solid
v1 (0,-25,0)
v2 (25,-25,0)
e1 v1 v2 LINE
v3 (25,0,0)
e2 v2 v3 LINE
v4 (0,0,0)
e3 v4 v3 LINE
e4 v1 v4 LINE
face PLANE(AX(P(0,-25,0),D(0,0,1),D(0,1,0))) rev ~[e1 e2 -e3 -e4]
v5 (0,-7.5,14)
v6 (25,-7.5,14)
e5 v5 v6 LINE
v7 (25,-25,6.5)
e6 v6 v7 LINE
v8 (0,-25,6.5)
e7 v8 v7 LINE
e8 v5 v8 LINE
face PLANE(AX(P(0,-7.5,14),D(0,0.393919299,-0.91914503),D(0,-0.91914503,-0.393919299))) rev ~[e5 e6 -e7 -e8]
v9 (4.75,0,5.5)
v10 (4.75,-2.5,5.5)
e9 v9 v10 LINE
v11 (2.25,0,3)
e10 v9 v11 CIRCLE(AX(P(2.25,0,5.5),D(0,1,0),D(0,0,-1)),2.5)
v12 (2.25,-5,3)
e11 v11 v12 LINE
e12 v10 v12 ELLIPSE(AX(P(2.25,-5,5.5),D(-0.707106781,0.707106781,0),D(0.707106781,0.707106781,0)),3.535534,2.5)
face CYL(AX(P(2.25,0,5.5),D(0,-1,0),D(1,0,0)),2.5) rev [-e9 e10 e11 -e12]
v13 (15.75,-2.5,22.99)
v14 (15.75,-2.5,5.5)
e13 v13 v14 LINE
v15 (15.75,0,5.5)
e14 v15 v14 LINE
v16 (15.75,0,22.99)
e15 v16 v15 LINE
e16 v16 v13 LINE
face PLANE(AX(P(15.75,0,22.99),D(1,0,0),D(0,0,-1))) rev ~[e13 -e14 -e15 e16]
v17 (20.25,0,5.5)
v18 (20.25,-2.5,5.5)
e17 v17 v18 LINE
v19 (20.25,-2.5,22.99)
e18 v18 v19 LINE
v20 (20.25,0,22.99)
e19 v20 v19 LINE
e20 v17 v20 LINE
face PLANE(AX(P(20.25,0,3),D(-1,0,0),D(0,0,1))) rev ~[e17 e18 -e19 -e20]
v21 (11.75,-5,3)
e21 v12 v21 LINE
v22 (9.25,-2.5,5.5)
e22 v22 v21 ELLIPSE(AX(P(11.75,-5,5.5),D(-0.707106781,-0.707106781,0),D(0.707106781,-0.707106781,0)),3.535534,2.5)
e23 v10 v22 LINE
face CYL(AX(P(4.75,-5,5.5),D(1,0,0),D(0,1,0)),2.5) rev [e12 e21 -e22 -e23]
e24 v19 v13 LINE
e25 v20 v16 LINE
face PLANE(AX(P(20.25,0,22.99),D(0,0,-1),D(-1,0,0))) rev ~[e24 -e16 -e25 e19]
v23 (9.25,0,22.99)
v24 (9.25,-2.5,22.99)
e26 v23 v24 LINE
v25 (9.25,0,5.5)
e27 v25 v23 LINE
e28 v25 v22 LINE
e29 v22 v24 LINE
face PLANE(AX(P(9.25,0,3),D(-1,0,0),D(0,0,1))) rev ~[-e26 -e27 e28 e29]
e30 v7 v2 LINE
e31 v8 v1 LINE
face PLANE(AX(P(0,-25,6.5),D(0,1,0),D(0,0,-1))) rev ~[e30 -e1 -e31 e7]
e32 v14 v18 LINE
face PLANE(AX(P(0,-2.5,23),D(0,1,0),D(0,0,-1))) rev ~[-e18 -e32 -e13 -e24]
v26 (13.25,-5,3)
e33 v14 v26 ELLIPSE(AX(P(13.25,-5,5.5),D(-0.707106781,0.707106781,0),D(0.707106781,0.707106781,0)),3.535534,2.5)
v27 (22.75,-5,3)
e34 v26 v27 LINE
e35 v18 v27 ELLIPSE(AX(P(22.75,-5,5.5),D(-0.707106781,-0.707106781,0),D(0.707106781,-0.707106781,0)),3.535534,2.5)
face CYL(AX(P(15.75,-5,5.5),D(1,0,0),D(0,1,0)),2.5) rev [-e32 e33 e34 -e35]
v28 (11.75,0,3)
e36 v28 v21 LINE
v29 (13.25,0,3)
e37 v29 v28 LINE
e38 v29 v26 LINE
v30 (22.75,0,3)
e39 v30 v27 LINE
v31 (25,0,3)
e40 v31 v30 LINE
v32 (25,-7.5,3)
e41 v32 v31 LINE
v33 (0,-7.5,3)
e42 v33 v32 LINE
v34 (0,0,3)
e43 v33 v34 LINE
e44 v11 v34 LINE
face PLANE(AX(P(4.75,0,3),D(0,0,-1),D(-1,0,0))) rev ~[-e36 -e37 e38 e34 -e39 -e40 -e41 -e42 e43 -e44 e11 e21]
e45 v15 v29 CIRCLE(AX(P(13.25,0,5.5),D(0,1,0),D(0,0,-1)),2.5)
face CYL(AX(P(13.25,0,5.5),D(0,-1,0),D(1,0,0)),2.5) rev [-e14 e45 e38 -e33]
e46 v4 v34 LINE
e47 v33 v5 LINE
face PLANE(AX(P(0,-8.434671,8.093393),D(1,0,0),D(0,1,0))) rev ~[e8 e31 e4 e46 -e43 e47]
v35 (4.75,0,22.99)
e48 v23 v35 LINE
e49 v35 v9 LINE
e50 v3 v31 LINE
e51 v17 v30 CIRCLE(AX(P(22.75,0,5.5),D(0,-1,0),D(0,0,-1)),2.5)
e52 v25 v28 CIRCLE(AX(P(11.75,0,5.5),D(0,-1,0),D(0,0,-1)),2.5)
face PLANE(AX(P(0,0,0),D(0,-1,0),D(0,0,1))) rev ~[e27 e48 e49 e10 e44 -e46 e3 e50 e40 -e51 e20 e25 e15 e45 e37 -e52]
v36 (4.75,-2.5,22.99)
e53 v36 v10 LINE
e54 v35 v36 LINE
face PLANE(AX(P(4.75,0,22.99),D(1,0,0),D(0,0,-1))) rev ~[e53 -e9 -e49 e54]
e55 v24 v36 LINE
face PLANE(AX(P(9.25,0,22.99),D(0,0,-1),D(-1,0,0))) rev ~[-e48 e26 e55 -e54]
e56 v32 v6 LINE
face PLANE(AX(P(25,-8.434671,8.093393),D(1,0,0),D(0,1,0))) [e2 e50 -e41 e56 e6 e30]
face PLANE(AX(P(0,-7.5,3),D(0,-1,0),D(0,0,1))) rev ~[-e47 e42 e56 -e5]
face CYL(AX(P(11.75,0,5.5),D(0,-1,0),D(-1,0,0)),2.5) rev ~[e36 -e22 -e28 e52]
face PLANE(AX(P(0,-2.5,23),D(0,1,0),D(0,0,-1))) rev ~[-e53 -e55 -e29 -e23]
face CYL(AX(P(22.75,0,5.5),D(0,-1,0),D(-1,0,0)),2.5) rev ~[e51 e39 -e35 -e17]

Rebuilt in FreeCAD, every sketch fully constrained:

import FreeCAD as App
import Part
import Sketcher

V = App.Vector


def edges_at(feature, points):
    """Names of the edges that pass closest to the given points."""
    edges = feature.Shape.Edges
    near = lambda p: min(range(len(edges)), key=lambda i: edges[i].distToShape(Part.Vertex(*p))[0])
    return sorted({f"Edge{near(p) + 1}" for p in points})

doc = App.newDocument("Part")
body = doc.addObject("PartDesign::Body", "Body")

# Sketch on YZ plane
sketch1 = body.newObject("Sketcher::SketchObject", "Sketch")
sketch1.AttachmentSupport = (doc.getObject("YZ_Plane"), [""])
sketch1.MapMode = "FlatFace"
sketch1.addGeometry(Part.LineSegment(V(0, 0, 0), V(0, 23, 0)), False)
sketch1.addGeometry(Part.LineSegment(V(0, 23, 0), V(-2.5, 23, 0)), False)
sketch1.addGeometry(Part.LineSegment(V(-2.5, 23, 0), V(-2.5, 3, 0)), False)
sketch1.addGeometry(Part.LineSegment(V(-2.5, 3, 0), V(-7.5, 3, 0)), False)
sketch1.addGeometry(Part.LineSegment(V(-7.5, 3, 0), V(-7.5, 14, 0)), False)
sketch1.addGeometry(Part.LineSegment(V(-7.5, 14, 0), V(-25, 6.5, 0)), False)
sketch1.addGeometry(Part.LineSegment(V(-25, 6.5, 0), V(-25, 0, 0)), False)
sketch1.addGeometry(Part.LineSegment(V(-25, 0, 0), V(0, 0, 0)), False)
sketch1.addConstraint(Sketcher.Constraint("Coincident", 0, 2, 1, 1))
sketch1.addConstraint(Sketcher.Constraint("Coincident", 1, 2, 2, 1))
sketch1.addConstraint(Sketcher.Constraint("Coincident", 2, 2, 3, 1))
sketch1.addConstraint(Sketcher.Constraint("Coincident", 3, 2, 4, 1))
sketch1.addConstraint(Sketcher.Constraint("Coincident", 4, 2, 5, 1))
sketch1.addConstraint(Sketcher.Constraint("Coincident", 5, 2, 6, 1))
sketch1.addConstraint(Sketcher.Constraint("Coincident", 6, 2, 7, 1))
sketch1.addConstraint(Sketcher.Constraint("Coincident", 7, 2, 0, 1))
sketch1.addConstraint(Sketcher.Constraint("Vertical", 0))
sketch1.addConstraint(Sketcher.Constraint("Horizontal", 1))
sketch1.addConstraint(Sketcher.Constraint("Vertical", 2))
sketch1.addConstraint(Sketcher.Constraint("Horizontal", 3))
sketch1.addConstraint(Sketcher.Constraint("Vertical", 4))
sketch1.addConstraint(Sketcher.Constraint("Vertical", 6))
sketch1.addConstraint(Sketcher.Constraint("Horizontal", 7))
sketch1.addConstraint(Sketcher.Constraint("Coincident", 7, 2, -1, 1))
sketch1.addConstraint(Sketcher.Constraint("DistanceX", 3, 2, 3, 1, 5.0))
sketch1.addConstraint(Sketcher.Constraint("DistanceX", 7, 1, 7, 2, 25.0))
sketch1.addConstraint(Sketcher.Constraint("DistanceY", 0, 1, 0, 2, 23.0))
sketch1.addConstraint(Sketcher.Constraint("DistanceY", 2, 2, 2, 1, 20.0))
sketch1.addConstraint(Sketcher.Constraint("DistanceY", 4, 1, 4, 2, 11.0))
sketch1.addConstraint(Sketcher.Constraint("DistanceX", 1, 2, 1, 1, 2.5))
sketch1.addConstraint(Sketcher.Constraint("DistanceY", 6, 2, 6, 1, 6.5))
pad1 = body.newObject("PartDesign::Pad", "Pad")
pad1.Profile = sketch1
pad1.Length = 25

# Sketch on XZ plane
sketch2 = body.newObject("Sketcher::SketchObject", "Sketch001")
sketch2.AttachmentSupport = (doc.getObject("XZ_Plane"), [""])
sketch2.MapMode = "FlatFace"
sketch2.addGeometry(Part.LineSegment(V(25, 23, 0), V(25, 3, 0)), False)
sketch2.addGeometry(Part.LineSegment(V(25, 3, 0), V(20.25, 3, 0)), False)
sketch2.addGeometry(Part.LineSegment(V(20.25, 3, 0), V(20.25, 22.99, 0)), False)
sketch2.addGeometry(Part.LineSegment(V(20.25, 22.99, 0), V(15.75, 22.99, 0)), False)
sketch2.addGeometry(Part.LineSegment(V(15.75, 22.99, 0), V(15.75, 3, 0)), False)
sketch2.addGeometry(Part.LineSegment(V(15.75, 3, 0), V(9.25, 3, 0)), False)
sketch2.addGeometry(Part.LineSegment(V(9.25, 3, 0), V(9.25, 22.99, 0)), False)
sketch2.addGeometry(Part.LineSegment(V(9.25, 22.99, 0), V(4.75, 22.99, 0)), False)
sketch2.addGeometry(Part.LineSegment(V(4.75, 22.99, 0), V(4.75, 3, 0)), False)
sketch2.addGeometry(Part.LineSegment(V(4.75, 3, 0), V(0, 3, 0)), False)
sketch2.addGeometry(Part.LineSegment(V(0, 3, 0), V(0, 23, 0)), False)
sketch2.addGeometry(Part.LineSegment(V(0, 23, 0), V(25, 23, 0)), False)
sketch2.addConstraint(Sketcher.Constraint("Coincident", 0, 2, 1, 1))
sketch2.addConstraint(Sketcher.Constraint("Coincident", 1, 2, 2, 1))
sketch2.addConstraint(Sketcher.Constraint("Coincident", 2, 2, 3, 1))
sketch2.addConstraint(Sketcher.Constraint("Coincident", 3, 2, 4, 1))
sketch2.addConstraint(Sketcher.Constraint("Coincident", 4, 2, 5, 1))
sketch2.addConstraint(Sketcher.Constraint("Coincident", 5, 2, 6, 1))
sketch2.addConstraint(Sketcher.Constraint("Coincident", 6, 2, 7, 1))
sketch2.addConstraint(Sketcher.Constraint("Coincident", 7, 2, 8, 1))
sketch2.addConstraint(Sketcher.Constraint("Coincident", 8, 2, 9, 1))
sketch2.addConstraint(Sketcher.Constraint("Coincident", 9, 2, 10, 1))
sketch2.addConstraint(Sketcher.Constraint("Coincident", 10, 2, 11, 1))
sketch2.addConstraint(Sketcher.Constraint("Coincident", 11, 2, 0, 1))
sketch2.addConstraint(Sketcher.Constraint("Vertical", 0))
sketch2.addConstraint(Sketcher.Constraint("Horizontal", 1))
sketch2.addConstraint(Sketcher.Constraint("Vertical", 2))
sketch2.addConstraint(Sketcher.Constraint("Horizontal", 3))
sketch2.addConstraint(Sketcher.Constraint("Vertical", 4))
sketch2.addConstraint(Sketcher.Constraint("Horizontal", 5))
sketch2.addConstraint(Sketcher.Constraint("Vertical", 6))
sketch2.addConstraint(Sketcher.Constraint("Horizontal", 7))
sketch2.addConstraint(Sketcher.Constraint("Vertical", 8))
sketch2.addConstraint(Sketcher.Constraint("Horizontal", 9))
sketch2.addConstraint(Sketcher.Constraint("Vertical", 10))
sketch2.addConstraint(Sketcher.Constraint("Horizontal", 11))
sketch2.addConstraint(Sketcher.Constraint("PointOnObject", 9, 2, -2))
sketch2.addConstraint(Sketcher.Constraint("Horizontal", 1, 2, 4, 2))
sketch2.addConstraint(Sketcher.Constraint("Horizontal", 3, 2, 6, 2))
sketch2.addConstraint(Sketcher.Constraint("Horizontal", 5, 2, 8, 2))
sketch2.addConstraint(Sketcher.Constraint("Equal", 3, 7))
sketch2.addConstraint(Sketcher.Constraint("Equal", 1, 9))
sketch2.addConstraint(Sketcher.Constraint("DistanceX", 11, 1, 11, 2, 25.0))
sketch2.addConstraint(Sketcher.Constraint("DistanceY", 0, 2, 0, 1, 20.0))
sketch2.addConstraint(Sketcher.Constraint("DistanceX", 3, 2, 3, 1, 4.5))
sketch2.addConstraint(Sketcher.Constraint("DistanceX", 5, 2, 5, 1, 6.5))
sketch2.addConstraint(Sketcher.Constraint("DistanceY", -1, 1, 0, 2, 3.0))
sketch2.addConstraint(Sketcher.Constraint("DistanceY", 2, 1, 2, 2, 19.99))
pocket1 = body.newObject("PartDesign::Pocket", "Pocket")
pocket1.Profile = sketch2
pocket1.Length = 2.5
pocket1.Reversed = True
doc.recompute()

fillet = body.newObject("PartDesign::Fillet", "Fillet")
fillet.Base = (pocket1, edges_at(pocket1, [
    (20.25, -1.25, 3),
    (18, -2.5, 3),
    (7, -2.5, 3),
    (9.25, -1.25, 3),
    (15.75, -1.25, 3),
    (4.75, -1.25, 3),
]))
fillet.Radius = 2.5

doc.recompute()
